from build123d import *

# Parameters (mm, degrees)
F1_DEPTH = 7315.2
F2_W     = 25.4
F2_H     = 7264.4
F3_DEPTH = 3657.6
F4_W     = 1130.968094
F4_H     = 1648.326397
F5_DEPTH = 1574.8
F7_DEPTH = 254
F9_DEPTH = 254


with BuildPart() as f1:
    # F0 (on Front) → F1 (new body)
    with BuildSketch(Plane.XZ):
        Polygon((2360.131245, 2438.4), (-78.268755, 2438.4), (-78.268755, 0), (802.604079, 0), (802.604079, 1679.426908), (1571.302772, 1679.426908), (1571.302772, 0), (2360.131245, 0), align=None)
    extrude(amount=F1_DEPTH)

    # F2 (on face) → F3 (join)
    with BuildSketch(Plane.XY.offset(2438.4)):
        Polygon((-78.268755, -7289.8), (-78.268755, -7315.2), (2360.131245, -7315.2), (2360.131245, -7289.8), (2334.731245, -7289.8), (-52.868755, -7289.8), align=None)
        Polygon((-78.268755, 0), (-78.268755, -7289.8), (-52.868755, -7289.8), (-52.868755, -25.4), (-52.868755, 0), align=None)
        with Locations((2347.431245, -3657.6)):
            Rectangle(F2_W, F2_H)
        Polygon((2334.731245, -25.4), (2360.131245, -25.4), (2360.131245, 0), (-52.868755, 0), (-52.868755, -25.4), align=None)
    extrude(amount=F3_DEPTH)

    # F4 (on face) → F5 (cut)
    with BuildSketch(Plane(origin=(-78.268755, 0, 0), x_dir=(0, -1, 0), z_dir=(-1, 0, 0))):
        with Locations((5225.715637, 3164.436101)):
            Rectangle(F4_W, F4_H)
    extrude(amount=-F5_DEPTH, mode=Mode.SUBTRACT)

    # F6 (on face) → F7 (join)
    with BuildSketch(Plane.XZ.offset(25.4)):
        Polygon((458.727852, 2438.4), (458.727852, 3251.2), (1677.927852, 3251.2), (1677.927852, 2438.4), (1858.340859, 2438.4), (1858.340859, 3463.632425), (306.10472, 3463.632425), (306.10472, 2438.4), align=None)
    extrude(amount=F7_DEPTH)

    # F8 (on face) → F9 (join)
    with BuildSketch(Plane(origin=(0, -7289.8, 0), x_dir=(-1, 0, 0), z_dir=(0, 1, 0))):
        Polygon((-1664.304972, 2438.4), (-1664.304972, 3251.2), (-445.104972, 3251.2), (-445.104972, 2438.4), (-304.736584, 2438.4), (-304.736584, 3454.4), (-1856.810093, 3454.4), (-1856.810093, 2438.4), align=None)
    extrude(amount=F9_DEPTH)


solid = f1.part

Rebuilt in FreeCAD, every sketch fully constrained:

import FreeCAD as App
import Part
import Sketcher

V = App.Vector
Q = App.Units.Quantity

doc = App.newDocument("Part")
params = doc.addObject("Spreadsheet::Sheet", "Params")
for row, (alias, value) in enumerate([
    ("sketch1_width", "96 in"),
    ("pad1_length", "288 in"),
    ("sketch2_width", "96 in"),
    ("sketch2_width2", "94 in"),
    ("sketch2_height", "288 in"),
    ("sketch2_height2", "286 in"),
    ("pad2_length", "144 in"),
    ("pocket1_length", "62 in"),
    ("sketch4_width", "48 in"),
    ("sketch4_height", "32 in"),
    ("pad3_length", "10 in"),
    ("sketch5_width", "48 in"),
    ("sketch5_height", "32 in"),
    ("sketch5_height2", "40 in"),
    ("pad4_length", "10 in"),
], start=1):
    params.set(f"A{row}", alias)
    params.set(f"B{row}", "=" + value)
    params.setAlias(f"B{row}", alias)

body = doc.addObject("PartDesign::Body", "Body")

# Sketch on XZ plane
sketch1 = body.newObject("Sketcher::SketchObject", "Sketch")
sketch1.AttachmentSupport = (doc.getObject("XZ_Plane"), [""])
sketch1.MapMode = "FlatFace"
sketch1.addGeometry([
    Part.LineSegment(V(2360, 2438, 0), V(-78, 2438, 0)),  # 0
    Part.LineSegment(V(-78, 2438, 0), V(-78, 0, 0)),  # 1
    Part.LineSegment(V(-78, 0, 0), V(803, 0, 0)),  # 2
    Part.LineSegment(V(803, 0, 0), V(803, 1679, 0)),  # 3
    Part.LineSegment(V(803, 1679, 0), V(1571, 1679, 0)),  # 4
    Part.LineSegment(V(1571, 1679, 0), V(1571, 0, 0)),  # 5
    Part.LineSegment(V(1571, 0, 0), V(2360, 0, 0)),  # 6
    Part.LineSegment(V(2360, 0, 0), V(2360, 2438, 0)),  # 7
], False)
sketch1.addConstraint([
    Sketcher.Constraint("Coincident", 0, 2, 1, 1),
    Sketcher.Constraint("Coincident", 1, 2, 2, 1),
    Sketcher.Constraint("Coincident", 2, 2, 3, 1),
    Sketcher.Constraint("Coincident", 3, 2, 4, 1),
    Sketcher.Constraint("Coincident", 4, 2, 5, 1),
    Sketcher.Constraint("Coincident", 5, 2, 6, 1),
    Sketcher.Constraint("Coincident", 6, 2, 7, 1),
    Sketcher.Constraint("Coincident", 7, 2, 0, 1),
    Sketcher.Constraint("Horizontal", 0),
    Sketcher.Constraint("Vertical", 1),
    Sketcher.Constraint("Horizontal", 2),
    Sketcher.Constraint("Vertical", 3),
    Sketcher.Constraint("Horizontal", 4),
    Sketcher.Constraint("Vertical", 5),
    Sketcher.Constraint("Horizontal", 6),
    Sketcher.Constraint("Vertical", 7),
    Sketcher.Constraint("PointOnObject", 1, 2, -1),
    Sketcher.Constraint("PointOnObject", 5, 2, -1),
    Sketcher.Constraint("Equal", 0, 1),
    Sketcher.Constraint("DistanceX", 0, 2, 0, 1, Q("96 in")),
    Sketcher.Constraint("DistanceY", 3, 1, 3, 2, Q("1679.426908 mm")),
    Sketcher.Constraint("DistanceX", 2, 1, 2, 2, Q("880.872834 mm")),
    Sketcher.Constraint("DistanceX", 4, 1, 4, 2, Q("768.698693 mm")),
    Sketcher.Constraint("DistanceX", -1, 1, 2, 2, Q("802.604079 mm")),
])
sketch1.setExpression("Constraints[19]", "Params.sketch1_width")
pad1 = body.newObject("PartDesign::Pad", "Pad")
pad1.Profile = sketch1
pad1.setExpression("Length", "Params.pad1_length")

# Sketch on XY plane
sketch2 = body.newObject("Sketcher::SketchObject", "Sketch001")
sketch2.AttachmentSupport = (doc.getObject("XY_Plane"), [""])
sketch2.MapMode = "FlatFace"
sketch2.AttachmentOffset = App.Placement(V(0, 0, 96 * 25.4), App.Rotation())
sketch2.addGeometry([
    Part.LineSegment(V(-78, -7315, 0), V(2360, -7315, 0)),  # 0
    Part.LineSegment(V(2360, -7315, 0), V(2360, 0, 0)),  # 1
    Part.LineSegment(V(2360, 0, 0), V(-78, 0, 0)),  # 2
    Part.LineSegment(V(-78, 0, 0), V(-78, -7315, 0)),  # 3
    Part.LineSegment(V(2335, -25, 0), V(2335, -7290, 0)),  # 4
    Part.LineSegment(V(2335, -7290, 0), V(-53, -7290, 0)),  # 5
    Part.LineSegment(V(-53, -7290, 0), V(-53, -25, 0)),  # 6
    Part.LineSegment(V(-53, -25, 0), V(2335, -25, 0)),  # 7
], False)
sketch2.addConstraint([
    Sketcher.Constraint("Coincident", 0, 2, 1, 1),
    Sketcher.Constraint("Coincident", 1, 2, 2, 1),
    Sketcher.Constraint("Coincident", 2, 2, 3, 1),
    Sketcher.Constraint("Coincident", 3, 2, 0, 1),
    Sketcher.Constraint("Coincident", 4, 2, 5, 1),
    Sketcher.Constraint("Coincident", 5, 2, 6, 1),
    Sketcher.Constraint("Coincident", 6, 2, 7, 1),
    Sketcher.Constraint("Coincident", 7, 2, 4, 1),
    Sketcher.Constraint("Horizontal", 0),
    Sketcher.Constraint("Vertical", 1),
    Sketcher.Constraint("Horizontal", 2),
    Sketcher.Constraint("Vertical", 3),
    Sketcher.Constraint("Vertical", 4),
    Sketcher.Constraint("Horizontal", 5),
    Sketcher.Constraint("Vertical", 6),
    Sketcher.Constraint("Horizontal", 7),
    Sketcher.Constraint("PointOnObject", 1, 2, -1),
    Sketcher.Constraint("DistanceX", 0, 1, 0, 2, Q("96 in")),
    Sketcher.Constraint("DistanceX", 5, 2, 5, 1, Q("94 in")),
    Sketcher.Constraint("DistanceY", 1, 1, 1, 2, Q("288 in")),
    Sketcher.Constraint("DistanceY", 4, 2, 4, 1, Q("286 in")),
    Sketcher.Constraint("DistanceY", 4, 2, -1, 1, Q("287 in")),
    Sketcher.Constraint("DistanceX", 4, 2, 0, 2, Q("1 in")),
    Sketcher.Constraint("DistanceX", -1, 1, 0, 2, Q("2360.131245 mm")),
])
sketch2.setExpression("Constraints[17]", "Params.sketch2_width")
sketch2.setExpression("Constraints[18]", "Params.sketch2_width2")
sketch2.setExpression("Constraints[19]", "Params.sketch2_height")
sketch2.setExpression("Constraints[20]", "Params.sketch2_height2")
pad2 = body.newObject("PartDesign::Pad", "Pad001")
pad2.Profile = sketch2
pad2.setExpression("Length", "Params.pad2_length")

# Sketch on YZ plane
sketch3 = body.newObject("Sketcher::SketchObject", "Sketch002")
sketch3.AttachmentSupport = (doc.getObject("YZ_Plane"), [""])
sketch3.MapMode = "FlatFace"
sketch3.AttachmentOffset = App.Placement(V(0, 0, -78.268755), App.Rotation())
sketch3.addGeometry([
    Part.LineSegment(V(-4660, 3989, 0), V(-4660, 2340, 0)),
    Part.LineSegment(V(-4660, 2340, 0), V(-5791, 2340, 0)),
    Part.LineSegment(V(-5791, 2340, 0), V(-5791, 3989, 0)),
    Part.LineSegment(V(-5791, 3989, 0), V(-4660, 3989, 0)),
], False)
sketch3.addConstraint([
    Sketcher.Constraint("Coincident", 0, 2, 1, 1),
    Sketcher.Constraint("Coincident", 1, 2, 2, 1),
    Sketcher.Constraint("Coincident", 2, 2, 3, 1),
    Sketcher.Constraint("Coincident", 3, 2, 0, 1),
    Sketcher.Constraint("Vertical", 0),
    Sketcher.Constraint("Horizontal", 1),
    Sketcher.Constraint("Vertical", 2),
    Sketcher.Constraint("Horizontal", 3),
    Sketcher.Constraint("DistanceY", -1, 1, 2, 2, Q("3988.5993 mm")),
    Sketcher.Constraint("DistanceX", 1, 2, 1, 1, Q("1130.968094 mm")),
    Sketcher.Constraint("DistanceY", 0, 2, 0, 1, Q("1648.326397 mm")),
    Sketcher.Constraint("DistanceX", 0, 2, -1, 1, Q("4660.23159 mm")),
])
pocket1 = body.newObject("PartDesign::Pocket", "Pocket")
pocket1.Profile = sketch3
pocket1.setExpression("Length", "Params.pocket1_length")
pocket1.Reversed = True

# Sketch on XZ plane
sketch4 = body.newObject("Sketcher::SketchObject", "Sketch003")
sketch4.AttachmentSupport = (doc.getObject("XZ_Plane"), [""])
sketch4.MapMode = "FlatFace"
sketch4.AttachmentOffset = App.Placement(V(0, 0, 1 * 25.4), App.Rotation())
sketch4.addGeometry([
    Part.LineSegment(V(459, 2438, 0), V(459, 3251, 0)),  # 0
    Part.LineSegment(V(459, 3251, 0), V(1678, 3251, 0)),  # 1
    Part.LineSegment(V(1678, 3251, 0), V(1678, 2438, 0)),  # 2
    Part.LineSegment(V(1678, 2438, 0), V(1858, 2438, 0)),  # 3
    Part.LineSegment(V(1858, 2438, 0), V(1858, 3464, 0)),  # 4
    Part.LineSegment(V(1858, 3464, 0), V(306, 3464, 0)),  # 5
    Part.LineSegment(V(306, 3464, 0), V(306, 2438, 0)),  # 6
    Part.LineSegment(V(306, 2438, 0), V(459, 2438, 0)),  # 7
], False)
sketch4.addConstraint([
    Sketcher.Constraint("Coincident", 0, 2, 1, 1),
    Sketcher.Constraint("Coincident", 1, 2, 2, 1),
    Sketcher.Constraint("Coincident", 2, 2, 3, 1),
    Sketcher.Constraint("Coincident", 3, 2, 4, 1),
    Sketcher.Constraint("Coincident", 4, 2, 5, 1),
    Sketcher.Constraint("Coincident", 5, 2, 6, 1),
    Sketcher.Constraint("Coincident", 6, 2, 7, 1),
    Sketcher.Constraint("Coincident", 7, 2, 0, 1),
    Sketcher.Constraint("Vertical", 0),
    Sketcher.Constraint("Horizontal", 1),
    Sketcher.Constraint("Vertical", 2),
    Sketcher.Constraint("Horizontal", 3),
    Sketcher.Constraint("Vertical", 4),
    Sketcher.Constraint("Horizontal", 5),
    Sketcher.Constraint("Vertical", 6),
    Sketcher.Constraint("Horizontal", 7),
    Sketcher.Constraint("Horizontal", 3, 2, 6, 2),
    Sketcher.Constraint("DistanceX", 1, 1, 1, 2, Q("48 in")),
    Sketcher.Constraint("DistanceY", 0, 1, 0, 2, Q("32 in")),
    Sketcher.Constraint("DistanceY", -1, 1, 0, 2, Q("128 in")),
    Sketcher.Constraint("DistanceX", 5, 2, 5, 1, Q("1552.236139 mm")),
    Sketcher.Constraint("DistanceX", 7, 1, 7, 2, Q("152.623132 mm")),
    Sketcher.Constraint("DistanceY", 4, 1, 4, 2, Q("1025.232425 mm")),
    Sketcher.Constraint("DistanceX", -1, 1, 0, 2, Q("458.727852 mm")),
])
sketch4.setExpression("Constraints[17]", "Params.sketch4_width")
sketch4.setExpression("Constraints[18]", "Params.sketch4_height")
pad3 = body.newObject("PartDesign::Pad", "Pad002")
pad3.Profile = sketch4
pad3.setExpression("Length", "Params.pad3_length")

# Sketch on XZ plane
sketch5 = body.newObject("Sketcher::SketchObject", "Sketch004")
sketch5.AttachmentSupport = (doc.getObject("XZ_Plane"), [""])
sketch5.MapMode = "FlatFace"
sketch5.AttachmentOffset = App.Placement(V(0, 0, 287 * 25.4), App.Rotation())
sketch5.addGeometry([
    Part.LineSegment(V(1664, 2438, 0), V(1664, 3251, 0)),  # 0
    Part.LineSegment(V(1664, 3251, 0), V(445, 3251, 0)),  # 1
    Part.LineSegment(V(445, 3251, 0), V(445, 2438, 0)),  # 2
    Part.LineSegment(V(445, 2438, 0), V(305, 2438, 0)),  # 3
    Part.LineSegment(V(305, 2438, 0), V(305, 3454, 0)),  # 4
    Part.LineSegment(V(305, 3454, 0), V(1857, 3454, 0)),  # 5
    Part.LineSegment(V(1857, 3454, 0), V(1857, 2438, 0)),  # 6
    Part.LineSegment(V(1857, 2438, 0), V(1664, 2438, 0)),  # 7
], False)
sketch5.addConstraint([
    Sketcher.Constraint("Coincident", 0, 2, 1, 1),
    Sketcher.Constraint("Coincident", 1, 2, 2, 1),
    Sketcher.Constraint("Coincident", 2, 2, 3, 1),
    Sketcher.Constraint("Coincident", 3, 2, 4, 1),
    Sketcher.Constraint("Coincident", 4, 2, 5, 1),
    Sketcher.Constraint("Coincident", 5, 2, 6, 1),
    Sketcher.Constraint("Coincident", 6, 2, 7, 1),
    Sketcher.Constraint("Coincident", 7, 2, 0, 1),
    Sketcher.Constraint("Vertical", 0),
    Sketcher.Constraint("Horizontal", 1),
    Sketcher.Constraint("Vertical", 2),
    Sketcher.Constraint("Horizontal", 3),
    Sketcher.Constraint("Vertical", 4),
    Sketcher.Constraint("Horizontal", 5),
    Sketcher.Constraint("Vertical", 6),
    Sketcher.Constraint("Horizontal", 7),
    Sketcher.Constraint("Horizontal", 3, 2, 6, 2),
    Sketcher.Constraint("DistanceX", 1, 2, 1, 1, Q("48 in")),
    Sketcher.Constraint("DistanceY", 0, 1, 0, 2, Q("32 in")),
    Sketcher.Constraint("DistanceY", 4, 1, 4, 2, Q("40 in")),
    Sketcher.Constraint("DistanceY", -1, 1, 0, 2, Q("128 in")),
    Sketcher.Constraint("DistanceX", 5, 1, 5, 2, Q("1552.073509 mm")),
    Sketcher.Constraint("DistanceX", 7, 2, 7, 1, Q("192.505121 mm")),
    Sketcher.Constraint("DistanceX", -1, 1, 0, 2, Q("1664.304972 mm")),
])
sketch5.setExpression("Constraints[17]", "Params.sketch5_width")
sketch5.setExpression("Constraints[18]", "Params.sketch5_height")
sketch5.setExpression("Constraints[19]", "Params.sketch5_height2")
pad4 = body.newObject("PartDesign::Pad", "Pad003")
pad4.Profile = sketch5
pad4.setExpression("Length", "Params.pad4_length")
pad4.Reversed = True

doc.recompute()
